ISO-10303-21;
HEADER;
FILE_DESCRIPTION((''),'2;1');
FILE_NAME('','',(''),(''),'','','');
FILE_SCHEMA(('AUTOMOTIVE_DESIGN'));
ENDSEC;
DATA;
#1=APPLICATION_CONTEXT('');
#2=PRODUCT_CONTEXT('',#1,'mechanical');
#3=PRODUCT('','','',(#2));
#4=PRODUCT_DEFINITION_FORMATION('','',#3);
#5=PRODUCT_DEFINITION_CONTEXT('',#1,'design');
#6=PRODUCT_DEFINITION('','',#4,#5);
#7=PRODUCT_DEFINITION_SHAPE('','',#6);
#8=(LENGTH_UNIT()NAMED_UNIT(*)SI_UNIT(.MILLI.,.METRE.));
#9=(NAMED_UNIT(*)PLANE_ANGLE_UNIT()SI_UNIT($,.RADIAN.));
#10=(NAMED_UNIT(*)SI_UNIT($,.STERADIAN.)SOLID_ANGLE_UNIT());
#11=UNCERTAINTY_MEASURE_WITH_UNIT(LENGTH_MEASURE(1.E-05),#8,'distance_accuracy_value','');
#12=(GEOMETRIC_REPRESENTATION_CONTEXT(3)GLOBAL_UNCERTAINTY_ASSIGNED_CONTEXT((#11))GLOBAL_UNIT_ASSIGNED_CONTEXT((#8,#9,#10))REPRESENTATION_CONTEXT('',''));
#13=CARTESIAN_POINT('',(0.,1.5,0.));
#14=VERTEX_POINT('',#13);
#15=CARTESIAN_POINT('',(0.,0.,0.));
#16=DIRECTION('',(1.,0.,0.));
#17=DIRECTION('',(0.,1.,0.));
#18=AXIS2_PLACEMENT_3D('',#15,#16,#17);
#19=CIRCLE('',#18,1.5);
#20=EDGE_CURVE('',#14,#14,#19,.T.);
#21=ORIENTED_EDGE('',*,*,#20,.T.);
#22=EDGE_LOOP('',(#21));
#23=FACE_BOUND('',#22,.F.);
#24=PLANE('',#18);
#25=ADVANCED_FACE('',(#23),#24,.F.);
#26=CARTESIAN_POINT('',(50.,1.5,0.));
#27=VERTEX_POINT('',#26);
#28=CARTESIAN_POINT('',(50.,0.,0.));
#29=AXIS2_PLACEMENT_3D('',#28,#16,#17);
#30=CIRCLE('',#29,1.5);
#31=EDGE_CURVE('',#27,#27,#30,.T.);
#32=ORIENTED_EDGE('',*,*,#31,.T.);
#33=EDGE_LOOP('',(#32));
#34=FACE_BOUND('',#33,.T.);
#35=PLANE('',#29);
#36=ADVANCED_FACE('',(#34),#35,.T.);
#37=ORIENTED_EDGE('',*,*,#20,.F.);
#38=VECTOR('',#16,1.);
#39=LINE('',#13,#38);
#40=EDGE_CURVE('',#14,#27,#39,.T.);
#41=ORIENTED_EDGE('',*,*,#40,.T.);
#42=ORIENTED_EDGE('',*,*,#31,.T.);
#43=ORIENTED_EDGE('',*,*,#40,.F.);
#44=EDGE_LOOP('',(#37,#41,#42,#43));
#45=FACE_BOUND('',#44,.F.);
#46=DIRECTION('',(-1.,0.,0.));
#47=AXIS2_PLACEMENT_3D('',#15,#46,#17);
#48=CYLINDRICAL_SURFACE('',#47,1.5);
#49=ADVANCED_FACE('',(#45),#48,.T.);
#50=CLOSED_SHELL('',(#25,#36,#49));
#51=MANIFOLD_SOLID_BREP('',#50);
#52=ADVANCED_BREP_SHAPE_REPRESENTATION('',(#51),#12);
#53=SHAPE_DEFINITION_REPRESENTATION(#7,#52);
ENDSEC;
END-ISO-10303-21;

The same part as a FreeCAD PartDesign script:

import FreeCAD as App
import Part
import Sketcher
from FreeCAD import Vector
Q = App.Units.Quantity

doc = App.newDocument("Part")
body = doc.addObject("PartDesign::Body", "Body")

sketch1 = doc.addObject("Sketcher::SketchObject", "Sketch")
body.addObject(sketch1)
sketch1.AttachmentSupport = (doc.YZ_Plane, [""])
sketch1.MapMode = "FlatFace"
sketch1.addGeometry(Part.Circle(Vector(0, 0, 0), Vector(0, 0, 1), 1.5), False)
sketch1.addConstraint(Sketcher.Constraint("Coincident", 0, 3, -1, 1))
sketch1.addConstraint(Sketcher.Constraint("Diameter", 0, Q("3 mm")))
pad1 = doc.addObject("PartDesign::Pad", "Pad")
body.addObject(pad1)
pad1.Profile = sketch1
pad1.Length = 50

doc.recompute()
